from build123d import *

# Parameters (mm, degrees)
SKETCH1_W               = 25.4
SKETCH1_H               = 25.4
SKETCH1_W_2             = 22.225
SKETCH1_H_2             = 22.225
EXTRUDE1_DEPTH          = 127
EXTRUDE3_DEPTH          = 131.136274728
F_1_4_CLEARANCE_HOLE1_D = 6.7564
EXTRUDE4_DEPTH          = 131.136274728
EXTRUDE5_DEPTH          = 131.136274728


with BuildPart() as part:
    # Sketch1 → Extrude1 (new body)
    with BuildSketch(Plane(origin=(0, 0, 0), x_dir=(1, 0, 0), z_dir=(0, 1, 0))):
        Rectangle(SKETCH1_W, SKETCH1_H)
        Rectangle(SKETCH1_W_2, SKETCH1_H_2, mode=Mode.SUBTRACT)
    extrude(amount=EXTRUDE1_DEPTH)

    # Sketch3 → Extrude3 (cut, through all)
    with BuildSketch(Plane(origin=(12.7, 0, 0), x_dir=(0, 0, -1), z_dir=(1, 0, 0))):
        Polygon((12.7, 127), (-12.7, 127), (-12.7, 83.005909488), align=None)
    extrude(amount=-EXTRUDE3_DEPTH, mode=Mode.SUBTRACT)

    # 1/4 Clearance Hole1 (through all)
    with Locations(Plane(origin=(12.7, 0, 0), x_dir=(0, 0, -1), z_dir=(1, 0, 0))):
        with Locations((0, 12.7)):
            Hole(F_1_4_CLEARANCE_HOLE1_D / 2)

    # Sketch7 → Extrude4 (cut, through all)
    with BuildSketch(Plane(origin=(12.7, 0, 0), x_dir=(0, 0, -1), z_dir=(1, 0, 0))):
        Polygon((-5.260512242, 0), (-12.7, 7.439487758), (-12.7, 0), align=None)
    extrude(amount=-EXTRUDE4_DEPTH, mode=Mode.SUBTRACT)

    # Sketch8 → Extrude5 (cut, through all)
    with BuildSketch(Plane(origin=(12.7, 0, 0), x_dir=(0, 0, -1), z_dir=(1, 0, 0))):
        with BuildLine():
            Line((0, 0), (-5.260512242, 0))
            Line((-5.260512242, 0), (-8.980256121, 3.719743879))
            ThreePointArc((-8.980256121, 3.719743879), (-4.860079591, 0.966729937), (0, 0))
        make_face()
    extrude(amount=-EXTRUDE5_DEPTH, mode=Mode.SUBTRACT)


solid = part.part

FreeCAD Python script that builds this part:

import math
import FreeCAD as App
import Part
import Sketcher
Q = App.Units.Quantity


def add_polygon(sketch, points):
    """Adds a closed chain of lines whose ends are joined by coincident constraints."""
    first, n = sketch.GeometryCount, len(points)
    for a, b in zip(points, points[1:] + points[:1]):
        sketch.addGeometry(Part.LineSegment(App.Vector(*a, 0), App.Vector(*b, 0)), False)
    for i in range(n):
        sketch.addConstraint(Sketcher.Constraint("Coincident", first + i, 2, first + (i + 1) % n, 1))

doc = App.newDocument("Part")
body = doc.addObject("PartDesign::Body", "Body")

# Sketch on XZ plane
sketch1 = body.newObject("Sketcher::SketchObject", "Sketch")
sketch1.AttachmentSupport = (doc.getObject("XZ_Plane"), [""])
sketch1.MapMode = "FlatFace"
add_polygon(sketch1, [(-13, -13), (-13, 13), (13, 13), (13, -13)])  # lines 0-3
add_polygon(sketch1, [(11, 11), (-11, 11), (-11, -11), (11, -11)])  # lines 4-7
sketch1.addConstraint([
    Sketcher.Constraint("Vertical", 0),
    Sketcher.Constraint("Horizontal", 1),
    Sketcher.Constraint("Vertical", 2),
    Sketcher.Constraint("Horizontal", 3),
    Sketcher.Constraint("Horizontal", 4),
    Sketcher.Constraint("Vertical", 5),
    Sketcher.Constraint("Horizontal", 6),
    Sketcher.Constraint("Vertical", 7),
    Sketcher.Constraint("Symmetric", 0, 2, 2, 2, -1, 1),
    Sketcher.Constraint("Symmetric", 4, 2, 6, 2, -1, 1),
    Sketcher.Constraint("Equal", 3, 0),
    Sketcher.Constraint("Equal", 6, 5),
    Sketcher.Constraint("DistanceX", 1, 1, 1, 2, Q("1 in")),
    Sketcher.Constraint("DistanceX", 4, 2, 4, 1, Q("0.875 in")),
])
pad1 = body.newObject("PartDesign::Pad", "Pad")
pad1.Profile = sketch1
pad1.Length = Q("5 in")
pad1.Reversed = True

# Sketch on YZ plane
sketch2 = body.newObject("Sketcher::SketchObject", "Sketch001")
sketch2.AttachmentSupport = (doc.getObject("YZ_Plane"), [""])
sketch2.MapMode = "FlatFace"
sketch2.AttachmentOffset = App.Placement(App.Vector(0, 0, 0.5 * 25.4), App.Rotation())
add_polygon(sketch2, [(127, -13), (127, 13), (83, 13)])  # lines 0-2
sketch2.addConstraint([
    Sketcher.Constraint("Vertical", 0),
    Sketcher.Constraint("Horizontal", 1),
    Sketcher.Constraint("DistanceY", 0, 1, 0, 2, Q("1 in")),
    Sketcher.Constraint("Distance", 2, Q("2 in")),
    Sketcher.Constraint("DistanceX", -1, 1, 0, 2, Q("5 in")),
    Sketcher.Constraint("DistanceY", -1, 1, 0, 2, Q("0.5 in")),
])
pocket1 = body.newObject("PartDesign::Pocket", "Pocket")
pocket1.Profile = sketch2
pocket1.Type = "ThroughAll"

# Sketch on YZ plane
sketch3 = body.newObject("Sketcher::SketchObject", "Sketch002")
sketch3.AttachmentSupport = (doc.getObject("YZ_Plane"), [""])
sketch3.MapMode = "FlatFace"
sketch3.AttachmentOffset = App.Placement(App.Vector(0, 0, 0.5 * 25.4), App.Rotation())
sketch3.addGeometry(Part.Circle(App.Vector(12.7, 0, 0), App.Vector(0, 0, 1), 3.4), False)
sketch3.addConstraint([
    Sketcher.Constraint("PointOnObject", 0, 3, -1),
    Sketcher.Constraint("Diameter", 0, Q("0.266 in")),
    Sketcher.Constraint("DistanceX", -1, 1, 0, 3, Q("0.5 in")),
])
doc.recompute()
hole = body.newObject("PartDesign::Hole", "Hole")
hole.Profile = sketch3
hole.ThreadType = "None"
hole.Diameter = Q("0.266 in")
hole.DepthType = "ThroughAll"

# Sketch on YZ plane
sketch4 = body.newObject("Sketcher::SketchObject", "Sketch003")
sketch4.AttachmentSupport = (doc.getObject("YZ_Plane"), [""])
sketch4.MapMode = "FlatFace"
sketch4.AttachmentOffset = App.Placement(App.Vector(0, 0, 0.5 * 25.4), App.Rotation())
add_polygon(sketch4, [(0, 5), (7, 13), (0, 13)])  # lines 0-2
sketch4.addConstraint([
    Sketcher.Constraint("Horizontal", 1),
    Sketcher.Constraint("Vertical", 2),
    Sketcher.Constraint("PointOnObject", 1, 2, -2),
    Sketcher.Constraint("Equal", 1, 2),
    Sketcher.Constraint("DistanceY", -1, 1, 0, 2, Q("0.5 in")),
    Sketcher.Constraint("DistanceX", 1, 2, 1, 1, 7.439488),
])
pocket2 = body.newObject("PartDesign::Pocket", "Pocket001")
pocket2.Profile = sketch4
pocket2.Type = "ThroughAll"

# Sketch on YZ plane
sketch5 = body.newObject("Sketcher::SketchObject", "Sketch004")
sketch5.AttachmentSupport = (doc.getObject("YZ_Plane"), [""])
sketch5.MapMode = "FlatFace"
sketch5.AttachmentOffset = App.Placement(App.Vector(0, 0, 0.5 * 25.4), App.Rotation())
sketch5.addGeometry([
    Part.LineSegment(App.Vector(0, 5, 0), App.Vector(0, 0, 0)),
    Part.ArcOfCircle(Part.Circle(App.Vector(13, 0, 0), App.Vector(0, 0, 1), 13), math.radians(135), math.radians(180)),
    Part.LineSegment(App.Vector(4, 9, 0), App.Vector(0, 5, 0)),
], False)
sketch5.addConstraint([
    Sketcher.Constraint("Tangent", 0, 2, 1, 2),
    Sketcher.Constraint("Tangent", 1, 1, 2, 1),
    Sketcher.Constraint("Coincident", 2, 2, 0, 1),
    Sketcher.Constraint("Vertical", 0),
    Sketcher.Constraint("Coincident", 0, 2, -1, 1),
    Sketcher.Constraint("Radius", 1, Q("0.5 in")),
    Sketcher.Constraint("Angle", 2, Q("-135 deg")),
])
pocket3 = body.newObject("PartDesign::Pocket", "Pocket002")
pocket3.Profile = sketch5
pocket3.Type = "ThroughAll"

doc.recompute()
